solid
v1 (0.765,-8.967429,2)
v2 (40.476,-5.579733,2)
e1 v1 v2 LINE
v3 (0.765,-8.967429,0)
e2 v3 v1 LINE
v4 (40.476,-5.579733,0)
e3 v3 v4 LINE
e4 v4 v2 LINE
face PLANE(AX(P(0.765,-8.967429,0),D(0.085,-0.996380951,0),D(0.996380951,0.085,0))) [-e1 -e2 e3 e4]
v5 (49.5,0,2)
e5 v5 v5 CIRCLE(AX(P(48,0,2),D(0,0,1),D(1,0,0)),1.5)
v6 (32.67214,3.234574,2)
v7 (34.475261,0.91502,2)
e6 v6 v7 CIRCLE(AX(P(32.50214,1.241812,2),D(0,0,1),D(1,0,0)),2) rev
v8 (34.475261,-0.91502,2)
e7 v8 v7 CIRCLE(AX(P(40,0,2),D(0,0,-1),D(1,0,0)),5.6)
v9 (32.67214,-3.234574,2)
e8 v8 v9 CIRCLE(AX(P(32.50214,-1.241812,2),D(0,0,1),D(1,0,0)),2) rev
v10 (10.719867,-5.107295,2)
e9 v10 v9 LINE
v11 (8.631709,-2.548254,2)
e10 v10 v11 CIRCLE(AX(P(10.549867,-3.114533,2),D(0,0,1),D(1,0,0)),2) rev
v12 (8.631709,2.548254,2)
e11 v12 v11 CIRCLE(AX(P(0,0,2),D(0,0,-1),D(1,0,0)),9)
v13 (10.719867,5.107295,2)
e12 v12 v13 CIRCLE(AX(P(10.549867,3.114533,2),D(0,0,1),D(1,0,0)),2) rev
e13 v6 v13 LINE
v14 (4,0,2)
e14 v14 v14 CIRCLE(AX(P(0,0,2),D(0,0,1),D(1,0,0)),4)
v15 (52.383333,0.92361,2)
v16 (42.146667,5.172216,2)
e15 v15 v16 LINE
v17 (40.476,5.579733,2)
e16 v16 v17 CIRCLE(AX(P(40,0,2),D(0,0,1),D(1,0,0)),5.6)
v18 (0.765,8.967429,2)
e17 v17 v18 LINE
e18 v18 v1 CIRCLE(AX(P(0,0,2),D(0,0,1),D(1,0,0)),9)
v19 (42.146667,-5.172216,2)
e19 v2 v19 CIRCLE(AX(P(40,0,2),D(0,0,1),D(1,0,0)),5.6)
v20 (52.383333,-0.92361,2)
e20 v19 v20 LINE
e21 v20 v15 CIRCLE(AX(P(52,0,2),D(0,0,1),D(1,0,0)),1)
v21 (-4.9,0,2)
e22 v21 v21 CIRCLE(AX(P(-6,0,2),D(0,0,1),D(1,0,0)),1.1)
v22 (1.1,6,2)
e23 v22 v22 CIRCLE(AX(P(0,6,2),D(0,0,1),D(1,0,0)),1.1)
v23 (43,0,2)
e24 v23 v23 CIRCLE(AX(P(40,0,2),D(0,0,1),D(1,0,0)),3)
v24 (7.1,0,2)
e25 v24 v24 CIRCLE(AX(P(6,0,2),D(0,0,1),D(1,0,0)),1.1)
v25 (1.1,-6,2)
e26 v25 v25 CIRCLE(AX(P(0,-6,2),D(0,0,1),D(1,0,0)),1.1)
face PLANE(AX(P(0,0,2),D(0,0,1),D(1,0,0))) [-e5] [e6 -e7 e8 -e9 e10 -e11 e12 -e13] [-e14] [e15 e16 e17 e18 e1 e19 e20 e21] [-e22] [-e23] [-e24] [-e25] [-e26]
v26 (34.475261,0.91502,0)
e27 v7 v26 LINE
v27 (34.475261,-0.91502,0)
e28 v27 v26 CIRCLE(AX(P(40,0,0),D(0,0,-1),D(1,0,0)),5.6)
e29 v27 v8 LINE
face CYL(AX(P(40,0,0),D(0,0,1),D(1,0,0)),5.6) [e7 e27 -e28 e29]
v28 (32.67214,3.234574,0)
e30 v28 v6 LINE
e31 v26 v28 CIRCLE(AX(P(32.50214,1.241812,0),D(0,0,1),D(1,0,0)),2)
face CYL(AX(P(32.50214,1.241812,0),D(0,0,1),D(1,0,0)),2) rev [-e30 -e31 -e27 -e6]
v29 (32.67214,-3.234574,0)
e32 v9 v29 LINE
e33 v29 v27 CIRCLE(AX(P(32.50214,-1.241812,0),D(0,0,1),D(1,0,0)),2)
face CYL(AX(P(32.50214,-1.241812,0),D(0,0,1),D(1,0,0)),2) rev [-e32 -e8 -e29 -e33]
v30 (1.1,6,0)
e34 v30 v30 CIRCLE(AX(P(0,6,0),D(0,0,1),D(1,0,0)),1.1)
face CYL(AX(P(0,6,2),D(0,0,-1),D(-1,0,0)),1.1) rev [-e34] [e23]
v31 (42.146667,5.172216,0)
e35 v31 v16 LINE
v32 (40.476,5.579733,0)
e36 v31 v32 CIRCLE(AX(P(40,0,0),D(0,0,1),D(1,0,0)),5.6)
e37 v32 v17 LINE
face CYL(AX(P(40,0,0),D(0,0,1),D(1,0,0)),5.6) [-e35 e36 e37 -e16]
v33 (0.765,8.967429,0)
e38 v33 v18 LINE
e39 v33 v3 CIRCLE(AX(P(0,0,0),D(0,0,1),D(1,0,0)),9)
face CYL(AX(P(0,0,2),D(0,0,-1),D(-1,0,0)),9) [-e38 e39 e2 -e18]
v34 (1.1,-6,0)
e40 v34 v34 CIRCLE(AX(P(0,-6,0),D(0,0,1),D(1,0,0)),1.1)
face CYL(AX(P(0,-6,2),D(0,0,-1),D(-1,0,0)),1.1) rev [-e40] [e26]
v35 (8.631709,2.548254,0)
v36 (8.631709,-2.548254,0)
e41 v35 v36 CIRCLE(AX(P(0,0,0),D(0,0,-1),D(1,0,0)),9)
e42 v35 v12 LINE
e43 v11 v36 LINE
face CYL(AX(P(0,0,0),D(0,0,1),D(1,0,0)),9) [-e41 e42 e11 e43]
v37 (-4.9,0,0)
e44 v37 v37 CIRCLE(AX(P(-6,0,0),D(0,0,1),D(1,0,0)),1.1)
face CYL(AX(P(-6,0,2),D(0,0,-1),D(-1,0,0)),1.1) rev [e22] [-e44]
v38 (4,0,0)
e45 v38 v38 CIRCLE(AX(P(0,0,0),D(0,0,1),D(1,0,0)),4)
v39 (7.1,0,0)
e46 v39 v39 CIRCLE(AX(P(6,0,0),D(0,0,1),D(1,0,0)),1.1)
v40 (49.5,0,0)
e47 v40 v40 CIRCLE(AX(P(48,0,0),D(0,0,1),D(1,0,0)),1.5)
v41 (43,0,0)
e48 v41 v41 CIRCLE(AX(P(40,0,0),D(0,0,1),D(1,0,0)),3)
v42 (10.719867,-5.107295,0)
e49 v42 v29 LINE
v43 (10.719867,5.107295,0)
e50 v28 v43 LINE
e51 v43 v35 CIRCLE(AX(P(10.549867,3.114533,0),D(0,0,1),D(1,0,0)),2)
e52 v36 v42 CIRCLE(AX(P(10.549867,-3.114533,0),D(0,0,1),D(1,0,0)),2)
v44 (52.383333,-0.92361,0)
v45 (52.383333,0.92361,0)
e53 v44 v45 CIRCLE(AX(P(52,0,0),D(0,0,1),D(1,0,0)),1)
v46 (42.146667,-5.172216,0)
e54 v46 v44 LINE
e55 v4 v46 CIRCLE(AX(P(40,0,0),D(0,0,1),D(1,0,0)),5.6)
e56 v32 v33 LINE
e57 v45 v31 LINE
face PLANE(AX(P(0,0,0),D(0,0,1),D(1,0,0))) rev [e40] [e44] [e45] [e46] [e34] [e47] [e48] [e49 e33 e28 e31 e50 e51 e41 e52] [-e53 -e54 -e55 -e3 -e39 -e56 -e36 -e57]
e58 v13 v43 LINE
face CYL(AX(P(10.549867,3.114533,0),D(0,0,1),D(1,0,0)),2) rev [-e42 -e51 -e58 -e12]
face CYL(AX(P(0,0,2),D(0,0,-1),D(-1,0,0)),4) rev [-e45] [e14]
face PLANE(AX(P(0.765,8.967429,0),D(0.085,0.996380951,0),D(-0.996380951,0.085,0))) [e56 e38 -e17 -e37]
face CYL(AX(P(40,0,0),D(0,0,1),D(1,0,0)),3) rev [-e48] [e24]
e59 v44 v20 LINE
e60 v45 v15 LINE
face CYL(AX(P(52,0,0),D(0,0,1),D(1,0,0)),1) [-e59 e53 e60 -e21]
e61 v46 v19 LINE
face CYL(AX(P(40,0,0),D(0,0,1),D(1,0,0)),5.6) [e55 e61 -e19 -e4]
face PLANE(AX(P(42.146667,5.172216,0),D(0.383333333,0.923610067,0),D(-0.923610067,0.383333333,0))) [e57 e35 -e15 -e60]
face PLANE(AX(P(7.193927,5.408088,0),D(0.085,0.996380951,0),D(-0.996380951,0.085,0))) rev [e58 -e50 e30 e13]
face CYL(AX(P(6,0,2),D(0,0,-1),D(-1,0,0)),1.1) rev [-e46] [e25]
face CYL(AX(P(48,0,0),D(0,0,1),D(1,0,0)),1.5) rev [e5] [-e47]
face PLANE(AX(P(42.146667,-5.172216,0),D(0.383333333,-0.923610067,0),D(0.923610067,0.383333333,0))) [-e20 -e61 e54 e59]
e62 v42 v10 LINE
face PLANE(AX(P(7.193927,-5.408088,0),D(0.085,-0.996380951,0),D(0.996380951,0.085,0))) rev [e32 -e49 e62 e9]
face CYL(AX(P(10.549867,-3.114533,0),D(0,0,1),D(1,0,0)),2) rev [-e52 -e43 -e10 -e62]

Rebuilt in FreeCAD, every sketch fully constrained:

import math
import FreeCAD as App
import Part
import Sketcher
Q = App.Units.Quantity


def edges_at(feature, points):
    """Names of the edges that pass closest to the given points."""
    edges = feature.Shape.Edges
    near = lambda p: min(range(len(edges)), key=lambda i: edges[i].distToShape(Part.Vertex(*p))[0])
    return sorted({f"Edge{near(p) + 1}" for p in points})

doc = App.newDocument("Part")
body = doc.addObject("PartDesign::Body", "Body")

# Sketch on XY plane
sketch1 = doc.addObject("Sketcher::SketchObject", "Sketch")
body.addObject(sketch1)
sketch1.AttachmentSupport = (doc.XY_Plane, [""])
sketch1.MapMode = "FlatFace"
sketch1.addGeometry([
    Part.Circle(App.Vector(0, 0, 0), App.Vector(0, 0, 1), 9),  # 0
    Part.Circle(App.Vector(0, -6, 0), App.Vector(0, 0, 1), 1.1),  # 1
    Part.Circle(App.Vector(-6, 0, 0), App.Vector(0, 0, 1), 1.1),  # 2
    Part.Circle(App.Vector(0, 0, 0), App.Vector(0, 0, 1), 4),  # 3
    Part.Circle(App.Vector(6, 0, 0), App.Vector(0, 0, 1), 1.1),  # 4
    Part.Circle(App.Vector(0, 6, 0), App.Vector(0, 0, 1), 1.1),  # 5
], False)
sketch1.addConstraint([
    Sketcher.Constraint("Coincident", 0, 3, -1, 1),
    Sketcher.Constraint("Coincident", 3, 3, -1, 1),
    Sketcher.Constraint("Equal", 1, 2),
    Sketcher.Constraint("Equal", 2, 4),
    Sketcher.Constraint("Equal", 4, 5),
    Sketcher.Constraint("Symmetric", 2, 3, 4, 3, -1, 1),
    Sketcher.Constraint("Symmetric", 1, 3, 5, 3, -1, 1),
    Sketcher.Constraint("PointOnObject", 1, 3, -2),
    Sketcher.Constraint("PointOnObject", 2, 3, -1),
    Sketcher.Constraint("Diameter", 0, Q("18 mm")),
    Sketcher.Constraint("Diameter", 3, Q("8 mm")),
    Sketcher.Constraint("Diameter", 1, Q("2.2 mm")),
    Sketcher.Constraint("DistanceY", 1, 3, -1, 1, Q("6 mm")),
    Sketcher.Constraint("DistanceX", 2, 3, -1, 1, Q("6 mm")),
])
pad1 = doc.addObject("PartDesign::Pad", "Pad")
body.addObject(pad1)
pad1.Profile = sketch1
pad1.Length = 2

# Sketch on XY plane
sketch2 = doc.addObject("Sketcher::SketchObject", "Sketch001")
body.addObject(sketch2)
sketch2.AttachmentSupport = (doc.XY_Plane, [""])
sketch2.MapMode = "FlatFace"
sketch2.addGeometry([
    Part.LineSegment(App.Vector(40.5, 5.6, 0), App.Vector(0.8, 9, 0)),  # 0
    Part.ArcOfCircle(Part.Circle(App.Vector(0, 0, 0), App.Vector(0, 0, 1), 9), math.radians(-85), math.radians(85)),  # 1
    Part.LineSegment(App.Vector(0.8, -9, 0), App.Vector(40.5, -5.6, 0)),  # 2
    Part.ArcOfCircle(Part.Circle(App.Vector(40, 0, 0), App.Vector(0, 0, 1), 5.6), math.radians(-85), math.radians(85)),  # 3
    Part.Circle(App.Vector(40, 0, 0), App.Vector(0, 0, 1), 3),  # 4
], False)
sketch2.addConstraint([
    Sketcher.Constraint("Tangent", 0, 2, 1, 2),
    Sketcher.Constraint("Tangent", 1, 1, 2, 1),
    Sketcher.Constraint("Tangent", 2, 2, 3, 1),
    Sketcher.Constraint("Tangent", 3, 2, 0, 1),
    Sketcher.Constraint("Coincident", 1, 3, -1, 1),
    Sketcher.Constraint("Coincident", 4, 3, 3, 3),
    Sketcher.Constraint("PointOnObject", 3, 3, -1),
    Sketcher.Constraint("Diameter", 4, Q("6 mm")),
    Sketcher.Constraint("Radius", 1, Q("9 mm")),
    Sketcher.Constraint("Radius", 3, Q("5.6 mm")),
    Sketcher.Constraint("DistanceX", -1, 1, 3, 3, Q("40 mm")),
])
pad2 = doc.addObject("PartDesign::Pad", "Pad001")
body.addObject(pad2)
pad2.Profile = sketch2
pad2.Length = 2

# Sketch on XY plane
sketch3 = doc.addObject("Sketcher::SketchObject", "Sketch002")
body.addObject(sketch3)
sketch3.AttachmentSupport = (doc.XY_Plane, [""])
sketch3.MapMode = "FlatFace"
sketch3.AttachmentOffset = App.Placement(App.Vector(0, 0, 2), App.Rotation())
sketch3.addGeometry([
    Part.LineSegment(App.Vector(35, 3, 0), App.Vector(7, 5, 0)),
    Part.ArcOfCircle(Part.Circle(App.Vector(0, 0, 0), App.Vector(0, 0, 1), 9), math.radians(-37), math.radians(37)),
    Part.LineSegment(App.Vector(7, -5, 0), App.Vector(35, -3, 0)),
    Part.ArcOfCircle(Part.Circle(App.Vector(40, 0, 0), App.Vector(0, 0, 1), 6), math.radians(147), math.radians(213)),
], False)
sketch3.addConstraint([
    Sketcher.Constraint("Coincident", 0, 2, 1, 2),
    Sketcher.Constraint("Coincident", 1, 1, 2, 1),
    Sketcher.Constraint("Coincident", 2, 2, 3, 2),
    Sketcher.Constraint("Coincident", 3, 1, 0, 1),
    Sketcher.Constraint("Coincident", 1, 3, -1, 1),
    Sketcher.Constraint("Symmetric", 2, 2, 3, 1, -1),
    Sketcher.Constraint("Vertical", 0, 2, 1, 1),
    Sketcher.Constraint("Radius", 1, Q("9 mm")),
    Sketcher.Constraint("Radius", 3, Q("5.6 mm")),
    Sketcher.Constraint("DistanceX", -1, 1, 3, 3, Q("40 mm")),
    Sketcher.Constraint("DistanceY", -1, 1, 0, 2, Q("5.408088 mm")),
    Sketcher.Constraint("DistanceX", -1, 1, 2, 2, Q("35.279111 mm")),
])
pocket1 = doc.addObject("PartDesign::Pocket", "Pocket")
body.addObject(pocket1)
pocket1.Profile = sketch3
pocket1.Type = "ThroughAll"
doc.recompute()

fillet = doc.addObject("PartDesign::Fillet", "Fillet")
body.addObject(fillet)
fillet.Base = (pocket1, edges_at(pocket1, [
    (7.194, -5.408, 1),
    (7.194, 5.408, 1),
    (35.279, 3.012, 1),
    (35.279, -3.012, 1),
]))
fillet.Radius = 2

# Sketch on XY plane
sketch4 = doc.addObject("Sketcher::SketchObject", "Sketch003")
body.addObject(sketch4)
sketch4.AttachmentSupport = (doc.XY_Plane, [""])
sketch4.MapMode = "FlatFace"
sketch4.AttachmentOffset = App.Placement(App.Vector(0, 0, 2), App.Rotation())
sketch4.addGeometry([
    Part.LineSegment(App.Vector(52.4, 0.9, 0), App.Vector(42.1, 5.2, 0)),  # 0
    Part.ArcOfCircle(Part.Circle(App.Vector(40, 0, 0), App.Vector(0, 0, 1), 5.6), math.radians(-67), math.radians(67)),  # 1
    Part.LineSegment(App.Vector(42.1, -5.2, 0), App.Vector(52.4, -0.9, 0)),  # 2
    Part.ArcOfCircle(Part.Circle(App.Vector(52, 0, 0), App.Vector(0, 0, 1), 1), math.radians(-67), math.radians(67)),  # 3
    Part.Circle(App.Vector(48, 0, 0), App.Vector(0, 0, 1), 1.5),  # 4
], False)
sketch4.addConstraint([
    Sketcher.Constraint("Tangent", 0, 2, 1, 2),
    Sketcher.Constraint("Tangent", 1, 1, 2, 1),
    Sketcher.Constraint("Tangent", 2, 2, 3, 1),
    Sketcher.Constraint("Tangent", 3, 2, 0, 1),
    Sketcher.Constraint("Symmetric", 0, 2, 1, 1, -1),
    Sketcher.Constraint("PointOnObject", 4, 3, -1),
    Sketcher.Constraint("Diameter", 4, Q("3 mm")),
    Sketcher.Constraint("Radius", 3, Q("1 mm")),
    Sketcher.Constraint("Radius", 1, Q("5.6 mm")),
    Sketcher.Constraint("DistanceX", -1, 1, 1, 3, Q("40 mm")),
    Sketcher.Constraint("DistanceX", -1, 1, 3, 3, Q("52 mm")),
    Sketcher.Constraint("DistanceX", -1, 1, 4, 3, Q("48 mm")),
])
pad3 = doc.addObject("PartDesign::Pad", "Pad002")
body.addObject(pad3)
pad3.Profile = sketch4
pad3.Length = 2
pad3.Reversed = True

doc.recompute()
